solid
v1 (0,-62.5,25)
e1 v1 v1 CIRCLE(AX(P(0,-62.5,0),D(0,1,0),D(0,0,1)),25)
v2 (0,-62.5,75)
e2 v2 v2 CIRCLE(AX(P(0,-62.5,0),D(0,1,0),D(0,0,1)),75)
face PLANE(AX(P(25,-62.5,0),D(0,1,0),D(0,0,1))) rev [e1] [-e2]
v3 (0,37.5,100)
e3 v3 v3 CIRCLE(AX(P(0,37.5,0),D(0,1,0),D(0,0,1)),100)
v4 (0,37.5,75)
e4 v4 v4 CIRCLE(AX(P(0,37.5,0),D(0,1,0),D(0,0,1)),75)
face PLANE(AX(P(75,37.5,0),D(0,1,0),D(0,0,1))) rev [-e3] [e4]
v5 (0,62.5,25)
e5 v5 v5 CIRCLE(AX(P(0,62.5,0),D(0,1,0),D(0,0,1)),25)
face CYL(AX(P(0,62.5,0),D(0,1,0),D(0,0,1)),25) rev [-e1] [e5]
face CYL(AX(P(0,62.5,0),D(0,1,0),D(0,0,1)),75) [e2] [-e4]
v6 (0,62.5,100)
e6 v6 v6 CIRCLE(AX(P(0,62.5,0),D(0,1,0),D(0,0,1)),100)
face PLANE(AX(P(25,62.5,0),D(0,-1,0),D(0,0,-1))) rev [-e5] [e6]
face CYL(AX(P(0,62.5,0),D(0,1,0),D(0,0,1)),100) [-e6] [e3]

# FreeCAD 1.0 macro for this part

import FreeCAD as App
import Part
import Sketcher

V = App.Vector

doc = App.newDocument("Part")
body = doc.addObject("PartDesign::Body", "Body")

sketch1 = doc.addObject("Sketcher::SketchObject", "Sketch")
body.addObject(sketch1)
sketch1.AttachmentSupport = (doc.XY_Plane, [""])
sketch1.MapMode = "FlatFace"
sketch1.addGeometry(Part.LineSegment(V(100, 62, 0), V(25, 62, 0)), False)
sketch1.addGeometry(Part.LineSegment(V(25, 62, 0), V(25, -62, 0)), False)
sketch1.addGeometry(Part.LineSegment(V(25, -62, 0), V(75, -62, 0)), False)
sketch1.addGeometry(Part.LineSegment(V(75, -62, 0), V(75, 38, 0)), False)
sketch1.addGeometry(Part.LineSegment(V(75, 38, 0), V(100, 38, 0)), False)
sketch1.addGeometry(Part.LineSegment(V(100, 38, 0), V(100, 62, 0)), False)
sketch1.addConstraint(Sketcher.Constraint("Coincident", 0, 2, 1, 1))
sketch1.addConstraint(Sketcher.Constraint("Coincident", 1, 2, 2, 1))
sketch1.addConstraint(Sketcher.Constraint("Coincident", 2, 2, 3, 1))
sketch1.addConstraint(Sketcher.Constraint("Coincident", 3, 2, 4, 1))
sketch1.addConstraint(Sketcher.Constraint("Coincident", 4, 2, 5, 1))
sketch1.addConstraint(Sketcher.Constraint("Coincident", 5, 2, 0, 1))
sketch1.addConstraint(Sketcher.Constraint("Horizontal", 0))
sketch1.addConstraint(Sketcher.Constraint("Vertical", 1))
sketch1.addConstraint(Sketcher.Constraint("Horizontal", 2))
sketch1.addConstraint(Sketcher.Constraint("Vertical", 3))
sketch1.addConstraint(Sketcher.Constraint("Horizontal", 4))
sketch1.addConstraint(Sketcher.Constraint("Vertical", 5))
sketch1.addConstraint(Sketcher.Constraint("Equal", 4, 5))
sketch1.addConstraint(Sketcher.Constraint("DistanceX", 0, 2, 0, 1, 75.0))
sketch1.addConstraint(Sketcher.Constraint("DistanceX", 2, 1, 2, 2, 50.0))
sketch1.addConstraint(Sketcher.Constraint("DistanceY", 1, 2, 1, 1, 125.0))
sketch1.addConstraint(Sketcher.Constraint("DistanceX", -1, 1, 0, 2, 25.0))
sketch1.addConstraint(Sketcher.Constraint("DistanceY", -1, 1, 0, 2, 62.5))
revolution = doc.addObject("PartDesign::Revolution", "Revolution")
body.addObject(revolution)
revolution.Profile = sketch1
revolution.ReferenceAxis = (sketch1, ["V_Axis"])
revolution.Angle = 360

doc.recompute()
